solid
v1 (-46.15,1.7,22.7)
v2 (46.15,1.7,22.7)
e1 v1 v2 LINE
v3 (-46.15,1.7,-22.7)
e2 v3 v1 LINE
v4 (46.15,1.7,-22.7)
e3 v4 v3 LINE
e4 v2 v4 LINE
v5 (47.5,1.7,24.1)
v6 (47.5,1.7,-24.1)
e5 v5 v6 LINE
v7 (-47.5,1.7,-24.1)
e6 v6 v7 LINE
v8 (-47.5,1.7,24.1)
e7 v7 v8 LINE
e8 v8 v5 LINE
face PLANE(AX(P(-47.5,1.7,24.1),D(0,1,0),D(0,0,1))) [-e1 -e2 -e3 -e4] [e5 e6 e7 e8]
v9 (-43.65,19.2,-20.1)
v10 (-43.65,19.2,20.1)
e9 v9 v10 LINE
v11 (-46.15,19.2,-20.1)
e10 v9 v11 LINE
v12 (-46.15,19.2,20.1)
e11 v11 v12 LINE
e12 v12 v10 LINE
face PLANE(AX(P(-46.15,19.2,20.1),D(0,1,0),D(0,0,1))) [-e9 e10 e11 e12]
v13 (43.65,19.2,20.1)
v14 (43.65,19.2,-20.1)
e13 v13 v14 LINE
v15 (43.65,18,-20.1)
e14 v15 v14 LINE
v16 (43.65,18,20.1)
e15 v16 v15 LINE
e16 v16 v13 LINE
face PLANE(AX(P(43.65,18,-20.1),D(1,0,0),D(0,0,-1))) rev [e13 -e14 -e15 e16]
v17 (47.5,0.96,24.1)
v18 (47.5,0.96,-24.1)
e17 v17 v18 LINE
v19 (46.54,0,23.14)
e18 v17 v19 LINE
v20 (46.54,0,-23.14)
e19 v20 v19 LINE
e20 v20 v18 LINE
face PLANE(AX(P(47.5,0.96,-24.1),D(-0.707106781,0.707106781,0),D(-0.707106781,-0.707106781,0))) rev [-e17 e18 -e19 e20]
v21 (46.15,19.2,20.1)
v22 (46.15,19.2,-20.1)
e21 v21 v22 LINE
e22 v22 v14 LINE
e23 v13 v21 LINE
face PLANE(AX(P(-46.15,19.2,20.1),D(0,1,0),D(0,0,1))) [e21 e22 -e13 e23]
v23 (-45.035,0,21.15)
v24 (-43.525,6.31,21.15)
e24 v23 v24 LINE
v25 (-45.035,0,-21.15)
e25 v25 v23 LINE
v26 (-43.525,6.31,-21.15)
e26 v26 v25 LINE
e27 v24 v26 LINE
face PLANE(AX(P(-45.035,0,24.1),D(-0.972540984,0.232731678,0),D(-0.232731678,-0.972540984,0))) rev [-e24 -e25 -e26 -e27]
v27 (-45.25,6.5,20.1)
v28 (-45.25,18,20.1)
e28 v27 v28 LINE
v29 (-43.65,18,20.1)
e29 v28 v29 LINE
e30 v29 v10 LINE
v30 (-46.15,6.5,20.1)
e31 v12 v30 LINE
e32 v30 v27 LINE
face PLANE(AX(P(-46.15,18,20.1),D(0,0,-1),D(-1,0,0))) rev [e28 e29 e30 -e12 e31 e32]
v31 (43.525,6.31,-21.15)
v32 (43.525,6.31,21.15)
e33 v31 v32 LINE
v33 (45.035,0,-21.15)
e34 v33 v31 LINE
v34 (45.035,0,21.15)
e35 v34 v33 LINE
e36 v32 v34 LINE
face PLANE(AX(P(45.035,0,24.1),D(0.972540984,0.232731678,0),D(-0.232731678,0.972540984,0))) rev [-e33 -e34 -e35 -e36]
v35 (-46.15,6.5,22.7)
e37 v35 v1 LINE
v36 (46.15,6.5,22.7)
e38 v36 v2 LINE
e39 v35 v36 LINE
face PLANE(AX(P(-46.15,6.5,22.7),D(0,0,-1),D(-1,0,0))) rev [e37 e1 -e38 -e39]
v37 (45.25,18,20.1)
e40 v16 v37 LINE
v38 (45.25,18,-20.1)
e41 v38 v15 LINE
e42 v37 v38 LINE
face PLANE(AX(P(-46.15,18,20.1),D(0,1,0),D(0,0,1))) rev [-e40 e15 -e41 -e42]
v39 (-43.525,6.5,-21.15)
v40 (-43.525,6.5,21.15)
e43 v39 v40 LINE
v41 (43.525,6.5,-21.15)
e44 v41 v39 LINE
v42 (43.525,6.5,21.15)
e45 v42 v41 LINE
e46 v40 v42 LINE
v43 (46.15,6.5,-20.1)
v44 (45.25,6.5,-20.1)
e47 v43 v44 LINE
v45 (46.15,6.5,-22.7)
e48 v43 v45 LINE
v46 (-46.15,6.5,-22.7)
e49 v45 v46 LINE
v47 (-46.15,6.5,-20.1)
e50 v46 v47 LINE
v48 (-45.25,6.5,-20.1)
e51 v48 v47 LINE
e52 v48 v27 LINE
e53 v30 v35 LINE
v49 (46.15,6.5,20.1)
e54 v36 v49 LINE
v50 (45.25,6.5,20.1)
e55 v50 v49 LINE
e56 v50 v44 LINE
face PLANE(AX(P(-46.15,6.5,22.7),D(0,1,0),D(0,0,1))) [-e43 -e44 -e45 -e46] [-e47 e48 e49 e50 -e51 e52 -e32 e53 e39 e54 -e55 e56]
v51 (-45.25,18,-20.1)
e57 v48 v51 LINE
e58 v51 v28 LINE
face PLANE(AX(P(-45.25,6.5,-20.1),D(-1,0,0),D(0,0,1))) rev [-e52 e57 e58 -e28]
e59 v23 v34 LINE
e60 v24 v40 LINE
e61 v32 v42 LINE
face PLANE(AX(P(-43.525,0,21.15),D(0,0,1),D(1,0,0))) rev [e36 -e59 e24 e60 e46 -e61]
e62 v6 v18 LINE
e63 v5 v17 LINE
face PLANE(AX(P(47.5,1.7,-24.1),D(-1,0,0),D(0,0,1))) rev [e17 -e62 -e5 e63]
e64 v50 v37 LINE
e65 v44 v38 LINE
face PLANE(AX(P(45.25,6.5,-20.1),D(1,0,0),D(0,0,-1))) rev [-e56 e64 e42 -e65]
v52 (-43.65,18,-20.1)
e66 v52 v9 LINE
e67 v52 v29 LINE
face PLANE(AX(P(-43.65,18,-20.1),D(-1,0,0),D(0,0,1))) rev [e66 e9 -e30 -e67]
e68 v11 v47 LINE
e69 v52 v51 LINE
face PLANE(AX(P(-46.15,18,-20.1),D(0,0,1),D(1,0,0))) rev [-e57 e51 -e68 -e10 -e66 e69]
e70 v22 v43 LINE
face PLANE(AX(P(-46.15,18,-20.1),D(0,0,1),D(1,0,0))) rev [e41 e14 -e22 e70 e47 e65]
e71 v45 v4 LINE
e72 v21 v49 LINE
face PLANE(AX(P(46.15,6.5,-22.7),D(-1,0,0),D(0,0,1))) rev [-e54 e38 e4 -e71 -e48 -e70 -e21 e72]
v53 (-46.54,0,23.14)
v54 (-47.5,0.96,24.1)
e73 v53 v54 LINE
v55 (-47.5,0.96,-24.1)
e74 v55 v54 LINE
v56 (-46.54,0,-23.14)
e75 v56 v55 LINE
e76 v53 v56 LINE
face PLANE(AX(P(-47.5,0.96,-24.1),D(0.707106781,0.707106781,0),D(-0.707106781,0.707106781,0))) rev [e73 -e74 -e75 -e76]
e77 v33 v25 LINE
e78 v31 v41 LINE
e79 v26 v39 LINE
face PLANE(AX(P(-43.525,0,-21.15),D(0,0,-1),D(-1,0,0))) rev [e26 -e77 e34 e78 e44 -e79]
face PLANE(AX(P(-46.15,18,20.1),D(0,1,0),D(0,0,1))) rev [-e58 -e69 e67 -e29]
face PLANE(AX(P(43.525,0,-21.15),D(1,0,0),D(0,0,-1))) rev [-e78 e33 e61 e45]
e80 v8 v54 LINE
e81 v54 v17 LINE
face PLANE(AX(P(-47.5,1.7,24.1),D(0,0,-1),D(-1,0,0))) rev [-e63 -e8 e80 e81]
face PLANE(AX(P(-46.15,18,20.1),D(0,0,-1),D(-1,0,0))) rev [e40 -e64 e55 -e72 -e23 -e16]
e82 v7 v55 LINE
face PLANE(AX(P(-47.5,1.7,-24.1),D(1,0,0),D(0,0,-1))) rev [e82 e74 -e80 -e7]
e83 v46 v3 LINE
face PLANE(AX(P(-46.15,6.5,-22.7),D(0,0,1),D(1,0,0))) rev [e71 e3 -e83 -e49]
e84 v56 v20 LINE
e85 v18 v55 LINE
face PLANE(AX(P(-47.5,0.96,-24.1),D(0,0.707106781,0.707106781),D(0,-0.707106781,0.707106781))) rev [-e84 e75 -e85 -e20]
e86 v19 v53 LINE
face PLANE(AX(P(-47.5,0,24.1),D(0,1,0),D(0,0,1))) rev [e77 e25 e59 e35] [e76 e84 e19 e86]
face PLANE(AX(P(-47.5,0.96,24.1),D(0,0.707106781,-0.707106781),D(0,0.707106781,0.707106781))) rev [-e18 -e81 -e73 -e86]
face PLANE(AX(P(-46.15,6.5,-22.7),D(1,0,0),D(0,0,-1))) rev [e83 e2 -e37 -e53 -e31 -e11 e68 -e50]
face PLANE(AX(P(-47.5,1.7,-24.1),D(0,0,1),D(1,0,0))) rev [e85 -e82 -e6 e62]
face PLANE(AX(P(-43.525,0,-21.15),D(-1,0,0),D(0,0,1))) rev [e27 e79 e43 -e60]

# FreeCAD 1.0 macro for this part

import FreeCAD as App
import Part
import Sketcher
from FreeCAD import Vector
Q = App.Units.Quantity


def edges_at(feature, points):
    """Names of the edges that pass closest to the given points."""
    edges = feature.Shape.Edges
    near = lambda p: min(range(len(edges)), key=lambda i: edges[i].distToShape(Part.Vertex(*p))[0])
    return sorted({f"Edge{near(p) + 1}" for p in points})

doc = App.newDocument("Part")
body = doc.addObject("PartDesign::Body", "Body")

sketch1 = body.newObject("Sketcher::SketchObject", "Sketch")
sketch1.AttachmentSupport = (doc.getObject("XZ_Plane"), [""])
sketch1.MapMode = "FlatFace"
sketch1.addGeometry(Part.LineSegment(Vector(-47.5, -24.1, 0), Vector(-47.5, 24.1, 0)), False)
sketch1.addGeometry(Part.LineSegment(Vector(-47.5, 24.1, 0), Vector(47.5, 24.1, 0)), False)
sketch1.addGeometry(Part.LineSegment(Vector(47.5, 24.1, 0), Vector(47.5, -24.1, 0)), False)
sketch1.addGeometry(Part.LineSegment(Vector(47.5, -24.1, 0), Vector(-47.5, -24.1, 0)), False)
sketch1.addConstraint(Sketcher.Constraint("Coincident", 0, 2, 1, 1))
sketch1.addConstraint(Sketcher.Constraint("Coincident", 1, 2, 2, 1))
sketch1.addConstraint(Sketcher.Constraint("Coincident", 2, 2, 3, 1))
sketch1.addConstraint(Sketcher.Constraint("Coincident", 3, 2, 0, 1))
sketch1.addConstraint(Sketcher.Constraint("Vertical", 0))
sketch1.addConstraint(Sketcher.Constraint("Horizontal", 1))
sketch1.addConstraint(Sketcher.Constraint("Vertical", 2))
sketch1.addConstraint(Sketcher.Constraint("Horizontal", 3))
sketch1.addConstraint(Sketcher.Constraint("Symmetric", 0, 2, 2, 2, -1, 1))
sketch1.addConstraint(Sketcher.Constraint("DistanceX", 1, 1, 1, 2, Q("95 mm")))
sketch1.addConstraint(Sketcher.Constraint("DistanceY", 0, 1, 0, 2, Q("48.2 mm")))
pad1 = body.newObject("PartDesign::Pad", "Pad")
pad1.Profile = sketch1
pad1.Length = 1.7
pad1.Reversed = True

sketch2 = body.newObject("Sketcher::SketchObject", "Sketch001")
sketch2.AttachmentSupport = (doc.getObject("XZ_Plane"), [""])
sketch2.MapMode = "FlatFace"
sketch2.AttachmentOffset = App.Placement(Vector(0, 0, -1.7), App.Rotation())
sketch2.addGeometry(Part.LineSegment(Vector(-46.15, -22.7, 0), Vector(-46.15, 22.7, 0)), False)
sketch2.addGeometry(Part.LineSegment(Vector(-46.15, 22.7, 0), Vector(46.15, 22.7, 0)), False)
sketch2.addGeometry(Part.LineSegment(Vector(46.15, 22.7, 0), Vector(46.15, -22.7, 0)), False)
sketch2.addGeometry(Part.LineSegment(Vector(46.15, -22.7, 0), Vector(-46.15, -22.7, 0)), False)
sketch2.addConstraint(Sketcher.Constraint("Coincident", 0, 2, 1, 1))
sketch2.addConstraint(Sketcher.Constraint("Coincident", 1, 2, 2, 1))
sketch2.addConstraint(Sketcher.Constraint("Coincident", 2, 2, 3, 1))
sketch2.addConstraint(Sketcher.Constraint("Coincident", 3, 2, 0, 1))
sketch2.addConstraint(Sketcher.Constraint("Vertical", 0))
sketch2.addConstraint(Sketcher.Constraint("Horizontal", 1))
sketch2.addConstraint(Sketcher.Constraint("Vertical", 2))
sketch2.addConstraint(Sketcher.Constraint("Horizontal", 3))
sketch2.addConstraint(Sketcher.Constraint("Symmetric", 0, 2, 2, 2, -1, 1))
sketch2.addConstraint(Sketcher.Constraint("DistanceX", 1, 1, 1, 2, Q("92.3 mm")))
sketch2.addConstraint(Sketcher.Constraint("DistanceY", 0, 1, 0, 2, Q("45.4 mm")))
pad2 = body.newObject("PartDesign::Pad", "Pad001")
pad2.Profile = sketch2
pad2.Length = 4.8
pad2.Reversed = True

sketch3 = body.newObject("Sketcher::SketchObject", "Sketch002")
sketch3.AttachmentSupport = (doc.getObject("XZ_Plane"), [""])
sketch3.MapMode = "FlatFace"
sketch3.AttachmentOffset = App.Placement(Vector(0, 0, -6.5), App.Rotation())
sketch3.addGeometry(Part.LineSegment(Vector(43.525, 21.15, 0), Vector(43.525, -21.15, 0)), False)
sketch3.addGeometry(Part.LineSegment(Vector(43.525, -21.15, 0), Vector(-43.525, -21.15, 0)), False)
sketch3.addGeometry(Part.LineSegment(Vector(-43.525, -21.15, 0), Vector(-43.525, 21.15, 0)), False)
sketch3.addGeometry(Part.LineSegment(Vector(-43.525, 21.15, 0), Vector(43.525, 21.15, 0)), False)
sketch3.addConstraint(Sketcher.Constraint("Coincident", 0, 2, 1, 1))
sketch3.addConstraint(Sketcher.Constraint("Coincident", 1, 2, 2, 1))
sketch3.addConstraint(Sketcher.Constraint("Coincident", 2, 2, 3, 1))
sketch3.addConstraint(Sketcher.Constraint("Coincident", 3, 2, 0, 1))
sketch3.addConstraint(Sketcher.Constraint("Vertical", 0))
sketch3.addConstraint(Sketcher.Constraint("Horizontal", 1))
sketch3.addConstraint(Sketcher.Constraint("Vertical", 2))
sketch3.addConstraint(Sketcher.Constraint("Horizontal", 3))
sketch3.addConstraint(Sketcher.Constraint("Symmetric", 0, 2, 2, 2, -1, 1))
sketch3.addConstraint(Sketcher.Constraint("DistanceY", 0, 2, 0, 1, Q("42.3 mm")))
sketch3.addConstraint(Sketcher.Constraint("DistanceX", 1, 2, 1, 1, Q("87.05 mm")))
pocket1 = body.newObject("PartDesign::Pocket", "Pocket")
pocket1.Profile = sketch3
pocket1.Type = "ThroughAll"
pocket1.Reversed = True
doc.recompute()

chamfer = body.newObject("PartDesign::Chamfer", "Chamfer")
chamfer.Base = (pocket1, edges_at(pocket1, [(47.5, 0, 0)]))
chamfer.Size = 0.96
doc.recompute()

chamfer2 = body.newObject("PartDesign::Chamfer", "Chamfer001")
chamfer2.Base = (chamfer, edges_at(chamfer, [(-0.48, 0, -24.1)]))
chamfer2.Size = 0.96
doc.recompute()

chamfer3 = body.newObject("PartDesign::Chamfer", "Chamfer002")
chamfer3.Base = (chamfer2, edges_at(chamfer2, [(-47.5, 0, 0.48)]))
chamfer3.Size = 0.96
doc.recompute()

chamfer4 = body.newObject("PartDesign::Chamfer", "Chamfer003")
chamfer4.Base = (chamfer3, edges_at(chamfer3, [(0, 0, 24.1)]))
chamfer4.Size = 0.96
doc.recompute()

chamfer5 = body.newObject("PartDesign::Chamfer", "Chamfer004")
chamfer5.Base = (chamfer4, edges_at(chamfer4, [(-43.525, 0, 0)]))
chamfer5.ChamferType = "Two distances"
chamfer5.Size = 6.31
chamfer5.Size2 = 1.51
chamfer5.FlipDirection = True
doc.recompute()

chamfer6 = body.newObject("PartDesign::Chamfer", "Chamfer005")
chamfer6.Base = (chamfer5, edges_at(chamfer5, [(43.525, 0, 0)]))
chamfer6.ChamferType = "Two distances"
chamfer6.Size = 6.31
chamfer6.Size2 = 1.51
chamfer6.FlipDirection = True

sketch4 = body.newObject("Sketcher::SketchObject", "Sketch003")
sketch4.AttachmentSupport = (doc.getObject("XZ_Plane"), [""])
sketch4.MapMode = "FlatFace"
sketch4.AttachmentOffset = App.Placement(Vector(0, 0, -6.5), App.Rotation())
sketch4.addGeometry(Part.LineSegment(Vector(-46.15, -20.1, 0), Vector(-46.15, 20.1, 0)), False)
sketch4.addGeometry(Part.LineSegment(Vector(-46.15, 20.1, 0), Vector(46.15, 20.1, 0)), False)
sketch4.addGeometry(Part.LineSegment(Vector(46.15, 20.1, 0), Vector(46.15, -20.1, 0)), False)
sketch4.addGeometry(Part.LineSegment(Vector(46.15, -20.1, 0), Vector(-46.15, -20.1, 0)), False)
sketch4.addConstraint(Sketcher.Constraint("Coincident", 0, 2, 1, 1))
sketch4.addConstraint(Sketcher.Constraint("Coincident", 1, 2, 2, 1))
sketch4.addConstraint(Sketcher.Constraint("Coincident", 2, 2, 3, 1))
sketch4.addConstraint(Sketcher.Constraint("Coincident", 3, 2, 0, 1))
sketch4.addConstraint(Sketcher.Constraint("Vertical", 0))
sketch4.addConstraint(Sketcher.Constraint("Horizontal", 1))
sketch4.addConstraint(Sketcher.Constraint("Vertical", 2))
sketch4.addConstraint(Sketcher.Constraint("Horizontal", 3))
sketch4.addConstraint(Sketcher.Constraint("Symmetric", 0, 2, 2, 2, -1, 1))
sketch4.addConstraint(Sketcher.Constraint("DistanceX", 1, 1, 1, 2, Q("92.3 mm")))
sketch4.addConstraint(Sketcher.Constraint("DistanceY", 0, 1, 0, 2, Q("40.2 mm")))
pad3 = body.newObject("PartDesign::Pad", "Pad002")
pad3.Profile = sketch4
pad3.Length = 11.5
pad3.Reversed = True

sketch5 = body.newObject("Sketcher::SketchObject", "Sketch004")
sketch5.AttachmentSupport = (doc.getObject("XZ_Plane"), [""])
sketch5.MapMode = "FlatFace"
sketch5.AttachmentOffset = App.Placement(Vector(0, 0, -18), App.Rotation())
sketch5.addGeometry(Part.LineSegment(Vector(-45.25, -20.1, 0), Vector(-45.25, 20.1, 0)), False)
sketch5.addGeometry(Part.LineSegment(Vector(-45.25, 20.1, 0), Vector(45.25, 20.1, 0)), False)
sketch5.addGeometry(Part.LineSegment(Vector(45.25, 20.1, 0), Vector(45.25, -20.1, 0)), False)
sketch5.addGeometry(Part.LineSegment(Vector(45.25, -20.1, 0), Vector(-45.25, -20.1, 0)), False)
sketch5.addConstraint(Sketcher.Constraint("Coincident", 0, 2, 1, 1))
sketch5.addConstraint(Sketcher.Constraint("Coincident", 1, 2, 2, 1))
sketch5.addConstraint(Sketcher.Constraint("Coincident", 2, 2, 3, 1))
sketch5.addConstraint(Sketcher.Constraint("Coincident", 3, 2, 0, 1))
sketch5.addConstraint(Sketcher.Constraint("Vertical", 0))
sketch5.addConstraint(Sketcher.Constraint("Horizontal", 1))
sketch5.addConstraint(Sketcher.Constraint("Vertical", 2))
sketch5.addConstraint(Sketcher.Constraint("Horizontal", 3))
sketch5.addConstraint(Sketcher.Constraint("Symmetric", 0, 2, 2, 2, -1, 1))
sketch5.addConstraint(Sketcher.Constraint("DistanceX", 1, 1, 1, 2, Q("90.5 mm")))
sketch5.addConstraint(Sketcher.Constraint("DistanceY", 0, 1, 0, 2, Q("40.2 mm")))
pocket2 = body.newObject("PartDesign::Pocket", "Pocket001")
pocket2.Profile = sketch5
pocket2.Length = 11.5
pocket2.Reversed = True

sketch6 = body.newObject("Sketcher::SketchObject", "Sketch005")
sketch6.AttachmentSupport = (doc.getObject("XZ_Plane"), [""])
sketch6.MapMode = "FlatFace"
sketch6.AttachmentOffset = App.Placement(Vector(0, 0, -18), App.Rotation())
sketch6.addGeometry(Part.LineSegment(Vector(46.15, 20.1, 0), Vector(46.15, -20.1, 0)), False)
sketch6.addGeometry(Part.LineSegment(Vector(46.15, -20.1, 0), Vector(-46.15, -20.1, 0)), False)
sketch6.addGeometry(Part.LineSegment(Vector(-46.15, -20.1, 0), Vector(-46.15, 20.1, 0)), False)
sketch6.addGeometry(Part.LineSegment(Vector(-46.15, 20.1, 0), Vector(46.15, 20.1, 0)), False)
sketch6.addConstraint(Sketcher.Constraint("Coincident", 0, 2, 1, 1))
sketch6.addConstraint(Sketcher.Constraint("Coincident", 1, 2, 2, 1))
sketch6.addConstraint(Sketcher.Constraint("Coincident", 2, 2, 3, 1))
sketch6.addConstraint(Sketcher.Constraint("Coincident", 3, 2, 0, 1))
sketch6.addConstraint(Sketcher.Constraint("Vertical", 0))
sketch6.addConstraint(Sketcher.Constraint("Horizontal", 1))
sketch6.addConstraint(Sketcher.Constraint("Vertical", 2))
sketch6.addConstraint(Sketcher.Constraint("Horizontal", 3))
sketch6.addConstraint(Sketcher.Constraint("Symmetric", 0, 2, 2, 2, -1, 1))
sketch6.addConstraint(Sketcher.Constraint("DistanceX", 1, 2, 1, 1, Q("92.3 mm")))
sketch6.addConstraint(Sketcher.Constraint("DistanceY", 0, 2, 0, 1, Q("40.2 mm")))
pad4 = body.newObject("PartDesign::Pad", "Pad003")
pad4.Profile = sketch6
pad4.Length = 1.2
pad4.Reversed = True

sketch7 = body.newObject("Sketcher::SketchObject", "Sketch006")
sketch7.AttachmentSupport = (doc.getObject("XZ_Plane"), [""])
sketch7.MapMode = "FlatFace"
sketch7.AttachmentOffset = App.Placement(Vector(0, 0, -19.2), App.Rotation())
sketch7.addGeometry(Part.LineSegment(Vector(-43.65, -20.1, 0), Vector(-43.65, 20.1, 0)), False)
sketch7.addGeometry(Part.LineSegment(Vector(-43.65, 20.1, 0), Vector(43.65, 20.1, 0)), False)
sketch7.addGeometry(Part.LineSegment(Vector(43.65, 20.1, 0), Vector(43.65, -20.1, 0)), False)
sketch7.addGeometry(Part.LineSegment(Vector(43.65, -20.1, 0), Vector(-43.65, -20.1, 0)), False)
sketch7.addConstraint(Sketcher.Constraint("Coincident", 0, 2, 1, 1))
sketch7.addConstraint(Sketcher.Constraint("Coincident", 1, 2, 2, 1))
sketch7.addConstraint(Sketcher.Constraint("Coincident", 2, 2, 3, 1))
sketch7.addConstraint(Sketcher.Constraint("Coincident", 3, 2, 0, 1))
sketch7.addConstraint(Sketcher.Constraint("Vertical", 0))
sketch7.addConstraint(Sketcher.Constraint("Horizontal", 1))
sketch7.addConstraint(Sketcher.Constraint("Vertical", 2))
sketch7.addConstraint(Sketcher.Constraint("Horizontal", 3))
sketch7.addConstraint(Sketcher.Constraint("Symmetric", 0, 2, 2, 2, -1, 1))
sketch7.addConstraint(Sketcher.Constraint("DistanceX", 1, 1, 1, 2, Q("87.3 mm")))
sketch7.addConstraint(Sketcher.Constraint("DistanceY", 0, 1, 0, 2, Q("40.2 mm")))
pocket3 = body.newObject("PartDesign::Pocket", "Pocket002")
pocket3.Profile = sketch7
pocket3.Length = 1.2
pocket3.Reversed = True

doc.recompute()
